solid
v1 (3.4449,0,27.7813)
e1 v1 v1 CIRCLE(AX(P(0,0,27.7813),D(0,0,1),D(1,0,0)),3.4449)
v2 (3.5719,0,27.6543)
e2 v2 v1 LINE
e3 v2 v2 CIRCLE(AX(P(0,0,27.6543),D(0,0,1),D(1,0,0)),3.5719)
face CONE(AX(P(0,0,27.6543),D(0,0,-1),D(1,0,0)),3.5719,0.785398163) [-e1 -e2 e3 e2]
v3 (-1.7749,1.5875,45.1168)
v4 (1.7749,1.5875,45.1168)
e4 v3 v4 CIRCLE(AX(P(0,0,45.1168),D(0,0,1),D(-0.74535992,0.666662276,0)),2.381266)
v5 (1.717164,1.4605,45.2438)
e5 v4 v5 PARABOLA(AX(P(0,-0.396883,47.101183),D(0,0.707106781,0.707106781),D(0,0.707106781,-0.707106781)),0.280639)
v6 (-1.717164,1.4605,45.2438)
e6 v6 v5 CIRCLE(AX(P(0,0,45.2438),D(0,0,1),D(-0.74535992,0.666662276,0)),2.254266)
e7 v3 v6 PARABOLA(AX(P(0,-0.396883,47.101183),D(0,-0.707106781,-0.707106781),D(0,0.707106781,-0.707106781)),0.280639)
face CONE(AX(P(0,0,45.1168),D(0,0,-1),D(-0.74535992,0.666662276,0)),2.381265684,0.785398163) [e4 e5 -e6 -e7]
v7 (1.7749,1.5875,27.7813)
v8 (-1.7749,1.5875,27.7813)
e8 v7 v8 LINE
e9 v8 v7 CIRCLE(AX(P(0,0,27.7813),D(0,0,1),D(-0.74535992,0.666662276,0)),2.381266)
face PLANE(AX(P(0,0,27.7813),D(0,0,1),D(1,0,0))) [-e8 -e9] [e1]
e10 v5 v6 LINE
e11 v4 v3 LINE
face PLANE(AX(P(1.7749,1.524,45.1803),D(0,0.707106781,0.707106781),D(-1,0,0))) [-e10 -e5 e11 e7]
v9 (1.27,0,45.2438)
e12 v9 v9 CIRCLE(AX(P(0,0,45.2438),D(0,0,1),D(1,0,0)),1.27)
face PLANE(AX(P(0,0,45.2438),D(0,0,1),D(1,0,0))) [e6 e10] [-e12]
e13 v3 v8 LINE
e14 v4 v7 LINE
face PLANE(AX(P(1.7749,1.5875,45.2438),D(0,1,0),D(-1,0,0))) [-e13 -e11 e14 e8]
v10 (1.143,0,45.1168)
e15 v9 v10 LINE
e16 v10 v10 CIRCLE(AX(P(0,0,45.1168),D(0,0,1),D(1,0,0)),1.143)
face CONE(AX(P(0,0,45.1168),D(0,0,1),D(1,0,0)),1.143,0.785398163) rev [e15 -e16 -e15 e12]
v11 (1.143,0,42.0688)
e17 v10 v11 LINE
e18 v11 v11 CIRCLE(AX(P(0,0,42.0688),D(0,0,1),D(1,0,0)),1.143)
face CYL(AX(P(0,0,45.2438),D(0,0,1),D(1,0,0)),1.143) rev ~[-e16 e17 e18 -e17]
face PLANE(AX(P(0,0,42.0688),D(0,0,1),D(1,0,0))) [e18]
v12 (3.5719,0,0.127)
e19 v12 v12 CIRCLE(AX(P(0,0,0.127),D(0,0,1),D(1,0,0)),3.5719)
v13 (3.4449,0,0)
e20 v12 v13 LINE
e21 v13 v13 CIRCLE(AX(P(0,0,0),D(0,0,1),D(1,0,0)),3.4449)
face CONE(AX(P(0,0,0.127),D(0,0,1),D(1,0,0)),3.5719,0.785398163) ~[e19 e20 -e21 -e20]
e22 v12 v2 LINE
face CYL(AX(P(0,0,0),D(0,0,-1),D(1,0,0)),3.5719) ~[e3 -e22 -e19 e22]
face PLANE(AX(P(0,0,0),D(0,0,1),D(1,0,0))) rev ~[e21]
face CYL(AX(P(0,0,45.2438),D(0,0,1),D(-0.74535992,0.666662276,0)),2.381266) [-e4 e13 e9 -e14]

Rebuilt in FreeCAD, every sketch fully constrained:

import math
import FreeCAD as App
import Part
import Sketcher
Q = App.Units.Quantity


def edges_at(feature, points):
    """Names of the edges that pass closest to the given points."""
    edges = feature.Shape.Edges
    near = lambda p: min(range(len(edges)), key=lambda i: edges[i].distToShape(Part.Vertex(*p))[0])
    return sorted({f"Edge{near(p) + 1}" for p in points})

doc = App.newDocument("Part")
params = doc.addObject("Spreadsheet::Sheet", "Params")
for row, (alias, value) in enumerate([
    ("sketch1_diameter", "0.281252 in"),
    ("pad1_length", "1.781252 in"),
    ("sketch2_radius", "0.093752 in"),
    ("sketch2_diameter", "0.281252 in"),
    ("pocket1_length", "0.6875 in"),
    ("sketch3_diameter", "0.09 in"),
    ("pocket2_length", "0.125 in"),
    ("chamfer_size", "0.005 in"),
], start=1):
    params.set(f"A{row}", alias)
    params.set(f"B{row}", "=" + value)
    params.setAlias(f"B{row}", alias)

body = doc.addObject("PartDesign::Body", "Body")

# Sketch on XY plane
sketch1 = body.newObject("Sketcher::SketchObject", "Sketch")
sketch1.AttachmentSupport = (doc.getObject("XY_Plane"), [""])
sketch1.MapMode = "FlatFace"
sketch1.addGeometry(Part.Circle(App.Vector(0, 0, 0), App.Vector(0, 0, 1), 3.6), False)
sketch1.addConstraint([
    Sketcher.Constraint("Coincident", 0, 3, -1, 1),
    Sketcher.Constraint("Diameter", 0, Q("0.281252 in")),
])
sketch1.setExpression("Constraints[1]", "Params.sketch1_diameter")
pad1 = body.newObject("PartDesign::Pad", "Pad")
pad1.Profile = sketch1
pad1.setExpression("Length", "Params.pad1_length")

# Sketch on XY plane
sketch2 = body.newObject("Sketcher::SketchObject", "Sketch001")
sketch2.AttachmentSupport = (doc.getObject("XY_Plane"), [""])
sketch2.MapMode = "FlatFace"
sketch2.AttachmentOffset = App.Placement(App.Vector(0, 0, 1.781252 * 25.4), App.Rotation())
sketch2.addGeometry([
    Part.Circle(App.Vector(0, 0, 0), App.Vector(0, 0, 1), 3.6),
    Part.ArcOfCircle(Part.Circle(App.Vector(0, 0, 0), App.Vector(0, 0, 1), 2.4), math.radians(138), math.radians(402)),
    Part.LineSegment(App.Vector(-1.8, 1.6, 0), App.Vector(1.8, 1.6, 0)),
], False)
sketch2.addConstraint([
    Sketcher.Constraint("Coincident", 1, 1, 2, 1),
    Sketcher.Constraint("Coincident", 2, 2, 1, 2),
    Sketcher.Constraint("Horizontal", 2),
    Sketcher.Constraint("Coincident", 0, 3, -1, 1),
    Sketcher.Constraint("Coincident", 1, 3, -1, 1),
    Sketcher.Constraint("Radius", 1, Q("0.093752 in")),
    Sketcher.Constraint("Diameter", 0, Q("0.281252 in")),
    Sketcher.Constraint("DistanceY", -1, 1, 1, 1, Q("0.0625 in")),
])
sketch2.setExpression("Constraints[5]", "Params.sketch2_radius")
sketch2.setExpression("Constraints[6]", "Params.sketch2_diameter")
pocket1 = body.newObject("PartDesign::Pocket", "Pocket")
pocket1.Profile = sketch2
pocket1.setExpression("Length", "Params.pocket1_length")

# Sketch on XY plane
sketch3 = body.newObject("Sketcher::SketchObject", "Sketch002")
sketch3.AttachmentSupport = (doc.getObject("XY_Plane"), [""])
sketch3.MapMode = "FlatFace"
sketch3.AttachmentOffset = App.Placement(App.Vector(0, 0, 1.781252 * 25.4), App.Rotation())
sketch3.addGeometry(Part.Circle(App.Vector(0, 0, 0), App.Vector(0, 0, 1), 1.1), False)
sketch3.addConstraint([
    Sketcher.Constraint("Coincident", 0, 3, -1, 1),
    Sketcher.Constraint("Diameter", 0, Q("0.09 in")),
])
sketch3.setExpression("Constraints[1]", "Params.sketch3_diameter")
pocket2 = body.newObject("PartDesign::Pocket", "Pocket001")
pocket2.Profile = sketch3
pocket2.setExpression("Length", "Params.pocket2_length")
doc.recompute()

chamfer = body.newObject("PartDesign::Chamfer", "Chamfer")
chamfer.Base = (pocket2, edges_at(pocket2, [
    (0, -2.381, 45.244),
    (0, 1.587, 45.244),
    (-1.143, 0, 45.244),
    (-3.572, 0, 27.781),
    (-3.572, 0, 0),
]))
chamfer.setExpression("Size", "Params.chamfer_size")

doc.recompute()
